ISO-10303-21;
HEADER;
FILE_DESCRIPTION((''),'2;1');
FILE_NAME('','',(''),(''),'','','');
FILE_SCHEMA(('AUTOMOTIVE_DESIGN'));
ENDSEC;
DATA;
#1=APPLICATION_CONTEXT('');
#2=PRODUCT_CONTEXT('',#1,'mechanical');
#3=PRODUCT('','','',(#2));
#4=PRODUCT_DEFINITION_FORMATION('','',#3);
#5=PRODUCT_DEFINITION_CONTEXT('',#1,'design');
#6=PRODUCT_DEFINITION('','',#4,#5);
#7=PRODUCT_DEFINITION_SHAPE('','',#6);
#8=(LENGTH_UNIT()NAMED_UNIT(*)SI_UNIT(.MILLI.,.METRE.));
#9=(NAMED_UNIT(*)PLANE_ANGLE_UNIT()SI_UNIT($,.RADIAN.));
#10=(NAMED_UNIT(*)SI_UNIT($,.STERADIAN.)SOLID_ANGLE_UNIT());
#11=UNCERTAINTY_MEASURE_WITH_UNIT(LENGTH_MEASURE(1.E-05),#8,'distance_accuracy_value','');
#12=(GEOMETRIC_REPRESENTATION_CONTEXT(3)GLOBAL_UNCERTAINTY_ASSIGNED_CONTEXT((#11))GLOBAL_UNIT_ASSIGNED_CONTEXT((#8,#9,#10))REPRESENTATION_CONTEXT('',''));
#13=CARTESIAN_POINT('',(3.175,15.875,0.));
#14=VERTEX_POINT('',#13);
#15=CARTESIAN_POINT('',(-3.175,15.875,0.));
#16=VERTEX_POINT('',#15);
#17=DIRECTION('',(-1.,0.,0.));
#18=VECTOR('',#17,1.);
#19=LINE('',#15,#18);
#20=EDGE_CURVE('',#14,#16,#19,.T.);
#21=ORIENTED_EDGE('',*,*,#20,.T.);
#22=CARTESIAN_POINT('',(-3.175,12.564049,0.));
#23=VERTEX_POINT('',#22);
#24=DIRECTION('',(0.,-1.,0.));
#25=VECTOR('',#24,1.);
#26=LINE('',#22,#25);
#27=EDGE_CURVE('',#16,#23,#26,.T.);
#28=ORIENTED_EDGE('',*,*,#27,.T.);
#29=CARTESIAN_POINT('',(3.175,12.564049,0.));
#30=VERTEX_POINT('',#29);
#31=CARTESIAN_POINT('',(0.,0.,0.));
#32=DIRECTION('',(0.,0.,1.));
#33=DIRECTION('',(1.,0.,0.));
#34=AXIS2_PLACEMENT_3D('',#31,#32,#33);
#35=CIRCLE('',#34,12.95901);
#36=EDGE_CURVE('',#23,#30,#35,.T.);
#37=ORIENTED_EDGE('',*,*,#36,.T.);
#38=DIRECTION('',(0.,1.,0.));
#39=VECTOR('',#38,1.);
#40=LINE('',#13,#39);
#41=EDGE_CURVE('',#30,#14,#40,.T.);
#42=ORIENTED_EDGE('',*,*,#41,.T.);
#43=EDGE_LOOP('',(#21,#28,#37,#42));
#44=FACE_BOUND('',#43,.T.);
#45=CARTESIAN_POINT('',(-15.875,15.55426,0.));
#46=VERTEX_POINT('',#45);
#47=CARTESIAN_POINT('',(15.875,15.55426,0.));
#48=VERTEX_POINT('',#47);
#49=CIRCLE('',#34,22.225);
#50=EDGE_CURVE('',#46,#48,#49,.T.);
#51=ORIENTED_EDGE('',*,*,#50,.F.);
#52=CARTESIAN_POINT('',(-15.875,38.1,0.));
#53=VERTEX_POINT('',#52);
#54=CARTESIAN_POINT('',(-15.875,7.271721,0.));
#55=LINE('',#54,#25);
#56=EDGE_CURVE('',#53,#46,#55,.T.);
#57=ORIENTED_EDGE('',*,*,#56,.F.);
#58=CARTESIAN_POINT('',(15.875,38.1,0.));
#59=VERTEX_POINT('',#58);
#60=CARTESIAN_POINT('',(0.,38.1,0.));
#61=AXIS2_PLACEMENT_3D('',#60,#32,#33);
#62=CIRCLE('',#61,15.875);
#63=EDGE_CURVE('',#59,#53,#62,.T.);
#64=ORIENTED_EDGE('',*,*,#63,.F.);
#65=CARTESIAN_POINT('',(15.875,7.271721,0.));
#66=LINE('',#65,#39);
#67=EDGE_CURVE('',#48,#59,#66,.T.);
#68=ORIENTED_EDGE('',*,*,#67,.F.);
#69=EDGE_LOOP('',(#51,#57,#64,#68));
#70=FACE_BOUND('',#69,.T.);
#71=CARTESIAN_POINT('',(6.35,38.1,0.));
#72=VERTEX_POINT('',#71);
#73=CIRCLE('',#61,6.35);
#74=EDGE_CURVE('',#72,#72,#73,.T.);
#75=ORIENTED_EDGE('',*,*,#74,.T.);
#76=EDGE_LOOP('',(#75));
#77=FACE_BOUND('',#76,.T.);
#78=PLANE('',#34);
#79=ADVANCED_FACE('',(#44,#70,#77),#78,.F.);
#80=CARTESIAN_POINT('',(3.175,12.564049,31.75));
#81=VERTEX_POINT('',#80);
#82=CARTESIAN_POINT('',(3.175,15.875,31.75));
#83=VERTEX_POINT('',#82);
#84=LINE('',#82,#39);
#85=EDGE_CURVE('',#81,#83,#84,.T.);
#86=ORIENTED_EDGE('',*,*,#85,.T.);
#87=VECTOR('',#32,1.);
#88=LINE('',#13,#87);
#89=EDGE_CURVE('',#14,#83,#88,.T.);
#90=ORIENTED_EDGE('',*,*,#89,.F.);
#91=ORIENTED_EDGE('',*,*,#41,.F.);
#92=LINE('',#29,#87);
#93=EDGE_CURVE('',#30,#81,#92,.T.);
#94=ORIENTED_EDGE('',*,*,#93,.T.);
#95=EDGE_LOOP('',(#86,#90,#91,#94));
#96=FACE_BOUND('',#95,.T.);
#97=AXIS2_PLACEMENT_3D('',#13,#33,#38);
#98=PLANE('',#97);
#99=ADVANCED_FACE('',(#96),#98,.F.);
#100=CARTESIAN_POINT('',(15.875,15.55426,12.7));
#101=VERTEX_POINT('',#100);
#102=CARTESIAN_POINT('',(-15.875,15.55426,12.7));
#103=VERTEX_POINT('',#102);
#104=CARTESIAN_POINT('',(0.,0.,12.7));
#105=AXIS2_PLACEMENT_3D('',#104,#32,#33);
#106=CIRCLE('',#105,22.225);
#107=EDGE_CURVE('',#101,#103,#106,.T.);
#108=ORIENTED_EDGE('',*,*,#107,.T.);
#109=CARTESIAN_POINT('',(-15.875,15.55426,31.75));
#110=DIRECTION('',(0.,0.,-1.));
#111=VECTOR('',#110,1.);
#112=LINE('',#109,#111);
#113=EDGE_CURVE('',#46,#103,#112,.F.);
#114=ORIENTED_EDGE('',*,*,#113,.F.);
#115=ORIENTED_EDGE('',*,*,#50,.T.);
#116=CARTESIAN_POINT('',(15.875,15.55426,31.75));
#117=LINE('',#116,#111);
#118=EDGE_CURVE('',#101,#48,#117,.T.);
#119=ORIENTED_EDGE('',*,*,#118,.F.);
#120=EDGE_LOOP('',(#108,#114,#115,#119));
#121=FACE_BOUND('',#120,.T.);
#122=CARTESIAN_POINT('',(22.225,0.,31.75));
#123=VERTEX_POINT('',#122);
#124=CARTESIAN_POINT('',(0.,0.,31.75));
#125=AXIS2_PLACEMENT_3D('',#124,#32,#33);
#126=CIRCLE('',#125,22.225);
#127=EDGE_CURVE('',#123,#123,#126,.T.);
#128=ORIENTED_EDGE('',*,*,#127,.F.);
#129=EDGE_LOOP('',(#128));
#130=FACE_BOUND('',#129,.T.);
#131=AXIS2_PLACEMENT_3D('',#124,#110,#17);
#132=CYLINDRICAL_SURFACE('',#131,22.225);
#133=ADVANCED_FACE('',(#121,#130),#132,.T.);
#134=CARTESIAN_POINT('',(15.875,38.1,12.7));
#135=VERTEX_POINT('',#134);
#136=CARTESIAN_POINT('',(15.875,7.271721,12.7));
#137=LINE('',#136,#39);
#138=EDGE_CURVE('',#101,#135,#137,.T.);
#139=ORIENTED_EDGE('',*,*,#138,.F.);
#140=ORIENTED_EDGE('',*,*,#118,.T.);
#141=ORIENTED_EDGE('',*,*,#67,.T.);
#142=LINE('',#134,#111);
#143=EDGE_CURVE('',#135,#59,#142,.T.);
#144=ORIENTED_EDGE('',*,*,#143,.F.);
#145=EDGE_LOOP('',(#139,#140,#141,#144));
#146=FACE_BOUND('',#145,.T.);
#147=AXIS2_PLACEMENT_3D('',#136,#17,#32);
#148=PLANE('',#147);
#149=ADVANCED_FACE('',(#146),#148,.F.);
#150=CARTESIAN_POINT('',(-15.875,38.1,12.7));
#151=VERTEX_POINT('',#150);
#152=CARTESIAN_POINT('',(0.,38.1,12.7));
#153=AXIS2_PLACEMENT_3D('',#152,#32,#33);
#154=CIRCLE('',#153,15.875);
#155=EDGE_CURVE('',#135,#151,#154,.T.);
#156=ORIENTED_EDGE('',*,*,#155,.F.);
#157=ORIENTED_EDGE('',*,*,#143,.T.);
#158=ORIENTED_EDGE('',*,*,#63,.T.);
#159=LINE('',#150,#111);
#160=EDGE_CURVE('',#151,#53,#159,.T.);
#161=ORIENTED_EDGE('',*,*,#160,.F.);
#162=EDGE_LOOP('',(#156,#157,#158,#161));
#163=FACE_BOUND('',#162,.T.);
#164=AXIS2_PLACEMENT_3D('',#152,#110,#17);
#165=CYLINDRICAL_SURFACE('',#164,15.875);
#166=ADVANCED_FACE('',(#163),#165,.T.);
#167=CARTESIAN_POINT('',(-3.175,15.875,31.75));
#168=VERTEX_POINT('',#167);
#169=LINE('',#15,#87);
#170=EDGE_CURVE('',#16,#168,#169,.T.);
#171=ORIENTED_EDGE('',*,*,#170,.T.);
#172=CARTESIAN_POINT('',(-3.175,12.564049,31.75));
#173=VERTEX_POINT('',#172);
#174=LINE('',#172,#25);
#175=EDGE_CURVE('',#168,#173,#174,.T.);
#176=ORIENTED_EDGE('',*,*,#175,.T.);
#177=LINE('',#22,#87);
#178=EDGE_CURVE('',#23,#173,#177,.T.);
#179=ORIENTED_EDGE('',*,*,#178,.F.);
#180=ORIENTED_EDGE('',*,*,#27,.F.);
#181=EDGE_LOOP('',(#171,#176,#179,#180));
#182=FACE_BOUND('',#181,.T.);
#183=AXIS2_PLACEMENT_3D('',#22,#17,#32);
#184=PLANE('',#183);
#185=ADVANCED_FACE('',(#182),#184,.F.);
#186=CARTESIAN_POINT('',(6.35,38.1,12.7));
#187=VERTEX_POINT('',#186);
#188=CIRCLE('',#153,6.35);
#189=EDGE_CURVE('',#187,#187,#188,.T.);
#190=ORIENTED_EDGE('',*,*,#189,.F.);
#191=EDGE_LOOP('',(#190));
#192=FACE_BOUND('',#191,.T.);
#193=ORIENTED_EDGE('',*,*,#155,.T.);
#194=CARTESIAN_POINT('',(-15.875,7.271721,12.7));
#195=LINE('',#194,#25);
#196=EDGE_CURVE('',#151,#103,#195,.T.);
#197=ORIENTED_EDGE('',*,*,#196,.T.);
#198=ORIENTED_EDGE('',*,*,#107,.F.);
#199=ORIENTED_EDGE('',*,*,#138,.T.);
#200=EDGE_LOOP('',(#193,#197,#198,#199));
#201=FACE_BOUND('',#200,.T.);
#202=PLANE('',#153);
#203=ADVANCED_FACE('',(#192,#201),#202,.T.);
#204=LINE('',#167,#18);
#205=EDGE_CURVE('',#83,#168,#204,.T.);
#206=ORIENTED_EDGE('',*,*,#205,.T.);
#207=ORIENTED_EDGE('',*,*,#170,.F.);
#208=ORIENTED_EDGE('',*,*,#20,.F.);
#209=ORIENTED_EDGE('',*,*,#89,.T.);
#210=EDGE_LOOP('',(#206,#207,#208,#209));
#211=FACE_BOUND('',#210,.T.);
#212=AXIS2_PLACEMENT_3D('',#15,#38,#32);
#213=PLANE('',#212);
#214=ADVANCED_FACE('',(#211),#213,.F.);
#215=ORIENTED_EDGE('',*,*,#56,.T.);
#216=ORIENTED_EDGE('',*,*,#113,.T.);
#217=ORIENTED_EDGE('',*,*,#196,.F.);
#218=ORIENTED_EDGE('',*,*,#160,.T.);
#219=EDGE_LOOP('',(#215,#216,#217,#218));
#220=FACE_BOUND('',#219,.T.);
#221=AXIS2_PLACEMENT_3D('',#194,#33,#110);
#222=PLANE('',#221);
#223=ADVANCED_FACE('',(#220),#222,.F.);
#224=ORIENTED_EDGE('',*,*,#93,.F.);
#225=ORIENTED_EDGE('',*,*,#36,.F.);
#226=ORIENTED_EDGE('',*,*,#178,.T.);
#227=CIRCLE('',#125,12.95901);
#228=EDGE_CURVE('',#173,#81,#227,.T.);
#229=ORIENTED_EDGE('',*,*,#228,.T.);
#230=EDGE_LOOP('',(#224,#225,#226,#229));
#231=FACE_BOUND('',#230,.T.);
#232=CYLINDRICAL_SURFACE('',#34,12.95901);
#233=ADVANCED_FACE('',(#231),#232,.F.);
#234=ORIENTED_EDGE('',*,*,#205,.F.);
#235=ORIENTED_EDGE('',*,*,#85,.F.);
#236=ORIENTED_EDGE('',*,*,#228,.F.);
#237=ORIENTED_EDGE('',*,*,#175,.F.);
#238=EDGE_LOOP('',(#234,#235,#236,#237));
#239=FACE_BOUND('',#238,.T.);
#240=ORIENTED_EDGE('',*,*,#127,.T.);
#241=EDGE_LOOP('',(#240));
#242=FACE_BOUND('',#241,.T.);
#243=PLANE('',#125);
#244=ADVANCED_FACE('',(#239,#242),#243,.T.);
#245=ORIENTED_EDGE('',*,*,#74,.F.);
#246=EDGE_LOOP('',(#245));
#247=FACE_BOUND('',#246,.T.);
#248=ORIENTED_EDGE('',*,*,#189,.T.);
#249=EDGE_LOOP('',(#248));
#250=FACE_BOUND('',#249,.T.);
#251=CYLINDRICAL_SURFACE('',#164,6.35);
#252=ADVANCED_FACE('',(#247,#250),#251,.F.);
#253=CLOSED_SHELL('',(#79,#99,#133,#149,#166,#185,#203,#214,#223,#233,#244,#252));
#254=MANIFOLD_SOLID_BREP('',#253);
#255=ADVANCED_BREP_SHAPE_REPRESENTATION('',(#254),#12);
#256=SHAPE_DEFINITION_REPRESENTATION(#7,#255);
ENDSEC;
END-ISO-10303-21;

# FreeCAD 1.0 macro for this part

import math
import FreeCAD as App
import Part
import Sketcher

V = App.Vector
Q = App.Units.Quantity

doc = App.newDocument("Part")
body = doc.addObject("PartDesign::Body", "Body")

# Sketch on XY plane
sketch1 = body.newObject("Sketcher::SketchObject", "Sketch")
sketch1.AttachmentSupport = (doc.getObject("XY_Plane"), [""])
sketch1.MapMode = "FlatFace"
sketch1.addGeometry(Part.Circle(V(0, 0, 0), V(0, 0, 1), 22.225), False)
sketch1.addConstraint([
    Sketcher.Constraint("Coincident", 0, 3, -1, 1),
    Sketcher.Constraint("Diameter", 0, Q("1.75 in")),
])
pad1 = body.newObject("PartDesign::Pad", "Pad")
pad1.Profile = sketch1
pad1.Length = Q("1.25 in")

# Sketch on XY plane
sketch2 = body.newObject("Sketcher::SketchObject", "Sketch001")
sketch2.AttachmentSupport = (doc.getObject("XY_Plane"), [""])
sketch2.MapMode = "FlatFace"
sketch2.addGeometry([
    Part.LineSegment(V(-15.875, 7.271721, 0), V(15.875, 7.271721, 0)),  # 0
    Part.LineSegment(V(15.875, 7.271721, 0), V(15.875, 38.1, 0)),  # 1
    Part.ArcOfCircle(Part.Circle(V(0, 38.1, 0), V(0, 0, 1), 15.875), math.radians(0), math.radians(180)),  # 2
    Part.LineSegment(V(-15.875, 38.1, 0), V(-15.875, 7.271721, 0)),  # 3
    Part.Circle(V(0, 38.1, 0), V(0, 0, 1), 6.35),  # 4
], False)
sketch2.addConstraint([
    Sketcher.Constraint("Coincident", 0, 2, 1, 1),
    Sketcher.Constraint("Tangent", 1, 2, 2, 1),
    Sketcher.Constraint("Tangent", 2, 2, 3, 1),
    Sketcher.Constraint("Coincident", 3, 2, 0, 1),
    Sketcher.Constraint("Horizontal", 0),
    Sketcher.Constraint("Vertical", 1),
    Sketcher.Constraint("Vertical", 3),
    Sketcher.Constraint("Coincident", 4, 3, 2, 3),
    Sketcher.Constraint("PointOnObject", 2, 3, -2),
    Sketcher.Constraint("Diameter", 4, Q("0.5 in")),
    Sketcher.Constraint("Radius", 2, Q("0.625 in")),
    Sketcher.Constraint("DistanceY", -1, 1, 2, 3, Q("1.5 in")),
    Sketcher.Constraint("DistanceY", 1, 1, 1, 2, 30.828279),
])
pad2 = body.newObject("PartDesign::Pad", "Pad001")
pad2.Profile = sketch2
pad2.Length = Q("0.5 in")

# Sketch on XY plane
sketch3 = body.newObject("Sketcher::SketchObject", "Sketch002")
sketch3.AttachmentSupport = (doc.getObject("XY_Plane"), [""])
sketch3.MapMode = "FlatFace"
sketch3.AttachmentOffset = App.Placement(V(0, 0, 1.25 * 25.4), App.Rotation())
sketch3.addGeometry([
    Part.LineSegment(V(-3.175, 15.875, 0), V(-3.175, 12.564049, 0)),
    Part.ArcOfCircle(Part.Circle(V(0, 0, 0), V(0, 0, 1), 12.95901), math.radians(104.182028), math.radians(435.817972)),
    Part.LineSegment(V(3.175, 12.564049, 0), V(3.175, 15.875, 0)),
    Part.LineSegment(V(3.175, 15.875, 0), V(-3.175, 15.875, 0)),
], False)
sketch3.addConstraint([
    Sketcher.Constraint("Coincident", 0, 2, 1, 1),
    Sketcher.Constraint("Coincident", 1, 2, 2, 1),
    Sketcher.Constraint("Coincident", 2, 2, 3, 1),
    Sketcher.Constraint("Coincident", 3, 2, 0, 1),
    Sketcher.Constraint("Vertical", 0),
    Sketcher.Constraint("Vertical", 2),
    Sketcher.Constraint("Horizontal", 3),
    Sketcher.Constraint("Coincident", 1, 3, -1, 1),
    Sketcher.Constraint("Horizontal", 0, 2, 1, 2),
    Sketcher.Constraint("DistanceX", 3, 2, 3, 1, Q("0.25 in")),
    Sketcher.Constraint("DistanceY", -1, 1, 2, 2, Q("0.625 in")),
    Sketcher.Constraint("Radius", 1, 12.95901),
])
pocket1 = body.newObject("PartDesign::Pocket", "Pocket")
pocket1.Profile = sketch3
pocket1.Type = "ThroughAll"

doc.recompute()
